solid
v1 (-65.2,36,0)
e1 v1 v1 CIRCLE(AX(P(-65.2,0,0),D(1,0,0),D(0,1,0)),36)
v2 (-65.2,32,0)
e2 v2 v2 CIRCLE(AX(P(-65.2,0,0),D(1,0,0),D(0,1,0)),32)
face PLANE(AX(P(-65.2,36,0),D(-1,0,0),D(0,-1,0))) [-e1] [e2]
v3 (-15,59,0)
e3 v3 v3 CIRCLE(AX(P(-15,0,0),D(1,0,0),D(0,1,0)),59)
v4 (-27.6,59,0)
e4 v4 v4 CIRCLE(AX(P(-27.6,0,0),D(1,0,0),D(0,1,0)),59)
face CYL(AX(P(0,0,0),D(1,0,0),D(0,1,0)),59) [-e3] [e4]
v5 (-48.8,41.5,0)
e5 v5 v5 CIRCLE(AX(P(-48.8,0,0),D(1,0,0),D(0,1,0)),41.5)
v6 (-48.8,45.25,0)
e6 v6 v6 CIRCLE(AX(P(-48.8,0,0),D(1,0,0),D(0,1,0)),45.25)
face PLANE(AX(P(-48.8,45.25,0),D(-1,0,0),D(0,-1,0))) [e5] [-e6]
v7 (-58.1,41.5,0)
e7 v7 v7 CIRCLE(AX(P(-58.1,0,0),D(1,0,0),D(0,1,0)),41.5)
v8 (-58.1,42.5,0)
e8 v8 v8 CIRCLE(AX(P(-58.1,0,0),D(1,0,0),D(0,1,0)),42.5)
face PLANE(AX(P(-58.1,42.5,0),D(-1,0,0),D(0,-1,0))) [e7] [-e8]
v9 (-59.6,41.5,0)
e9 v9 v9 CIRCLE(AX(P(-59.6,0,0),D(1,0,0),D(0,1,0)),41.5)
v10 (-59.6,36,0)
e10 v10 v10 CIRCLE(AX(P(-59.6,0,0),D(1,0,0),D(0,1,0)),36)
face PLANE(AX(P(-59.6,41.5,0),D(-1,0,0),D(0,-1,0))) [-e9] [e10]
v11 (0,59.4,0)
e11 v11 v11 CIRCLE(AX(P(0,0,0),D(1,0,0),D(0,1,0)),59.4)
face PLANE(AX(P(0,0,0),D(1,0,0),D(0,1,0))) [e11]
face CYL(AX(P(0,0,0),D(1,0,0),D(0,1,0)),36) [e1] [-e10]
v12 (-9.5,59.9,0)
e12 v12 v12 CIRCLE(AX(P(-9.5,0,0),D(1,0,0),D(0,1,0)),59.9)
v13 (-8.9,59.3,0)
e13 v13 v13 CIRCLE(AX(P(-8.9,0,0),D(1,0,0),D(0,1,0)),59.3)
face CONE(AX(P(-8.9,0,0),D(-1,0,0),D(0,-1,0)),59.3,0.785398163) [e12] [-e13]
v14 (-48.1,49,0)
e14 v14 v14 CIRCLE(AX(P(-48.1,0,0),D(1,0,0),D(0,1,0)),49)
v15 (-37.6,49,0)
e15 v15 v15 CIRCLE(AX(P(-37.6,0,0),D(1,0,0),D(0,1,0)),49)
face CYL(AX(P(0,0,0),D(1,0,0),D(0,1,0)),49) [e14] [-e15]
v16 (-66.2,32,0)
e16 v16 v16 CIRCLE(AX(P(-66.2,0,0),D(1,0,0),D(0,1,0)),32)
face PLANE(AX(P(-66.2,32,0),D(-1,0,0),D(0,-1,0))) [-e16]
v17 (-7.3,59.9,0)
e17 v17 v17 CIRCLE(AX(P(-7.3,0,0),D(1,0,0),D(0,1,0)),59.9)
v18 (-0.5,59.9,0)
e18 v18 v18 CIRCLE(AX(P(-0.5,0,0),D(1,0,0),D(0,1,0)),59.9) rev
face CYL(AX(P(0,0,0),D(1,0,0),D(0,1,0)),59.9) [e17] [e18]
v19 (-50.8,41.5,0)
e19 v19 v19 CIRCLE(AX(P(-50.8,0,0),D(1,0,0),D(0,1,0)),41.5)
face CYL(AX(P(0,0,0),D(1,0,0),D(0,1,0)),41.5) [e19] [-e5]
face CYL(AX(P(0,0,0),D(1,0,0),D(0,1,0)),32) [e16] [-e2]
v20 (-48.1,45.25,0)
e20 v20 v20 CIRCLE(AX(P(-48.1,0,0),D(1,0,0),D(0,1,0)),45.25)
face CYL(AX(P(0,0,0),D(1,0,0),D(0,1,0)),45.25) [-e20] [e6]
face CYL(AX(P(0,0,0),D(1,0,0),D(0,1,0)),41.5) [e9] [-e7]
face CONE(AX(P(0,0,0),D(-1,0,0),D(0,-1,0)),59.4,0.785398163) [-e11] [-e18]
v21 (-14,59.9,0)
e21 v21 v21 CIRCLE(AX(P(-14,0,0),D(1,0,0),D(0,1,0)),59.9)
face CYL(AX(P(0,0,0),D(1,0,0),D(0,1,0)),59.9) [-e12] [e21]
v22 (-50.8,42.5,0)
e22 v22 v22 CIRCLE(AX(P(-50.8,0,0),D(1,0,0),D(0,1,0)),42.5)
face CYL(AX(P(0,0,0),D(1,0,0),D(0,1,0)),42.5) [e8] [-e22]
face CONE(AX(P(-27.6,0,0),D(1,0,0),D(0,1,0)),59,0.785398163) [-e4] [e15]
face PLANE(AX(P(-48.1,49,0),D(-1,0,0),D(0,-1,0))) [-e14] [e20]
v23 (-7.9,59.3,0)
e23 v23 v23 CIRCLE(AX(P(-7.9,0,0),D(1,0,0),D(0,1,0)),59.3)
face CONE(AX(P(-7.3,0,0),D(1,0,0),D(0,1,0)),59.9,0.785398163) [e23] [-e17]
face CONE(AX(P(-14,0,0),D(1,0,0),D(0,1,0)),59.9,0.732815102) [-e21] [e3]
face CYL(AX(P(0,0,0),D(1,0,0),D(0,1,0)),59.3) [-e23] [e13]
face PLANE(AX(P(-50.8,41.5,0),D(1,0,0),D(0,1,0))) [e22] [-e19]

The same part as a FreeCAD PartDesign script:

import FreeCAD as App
import Part
import Sketcher
from FreeCAD import Vector
Q = App.Units.Quantity


def edges_at(feature, points):
    """Names of the edges that pass closest to the given points."""
    edges = feature.Shape.Edges
    near = lambda p: min(range(len(edges)), key=lambda i: edges[i].distToShape(Part.Vertex(*p))[0])
    return sorted({f"Edge{near(p) + 1}" for p in points})


def add_polygon(sketch, points):
    """Adds a closed chain of lines whose ends are joined by coincident constraints."""
    first, n = sketch.GeometryCount, len(points)
    for a, b in zip(points, points[1:] + points[:1]):
        sketch.addGeometry(Part.LineSegment(App.Vector(*a, 0), App.Vector(*b, 0)), False)
    for i in range(n):
        sketch.addConstraint(Sketcher.Constraint("Coincident", first + i, 2, first + (i + 1) % n, 1))

doc = App.newDocument("Part")
params = doc.addObject("Spreadsheet::Sheet", "Params")
for row, (alias, value) in enumerate([
    ("sketch1_width", "1 mm"),
    ("sketch1_width2", "2 mm"),
    ("sketch1_height", "4 mm"),
    ("sketch1_height2", "32 mm"),
    ("sketch1_width3", "7.3 mm"),
    ("revolution_angle", "360 deg"),
    ("chamfer_size", "0.5 mm"),
], start=1):
    params.set(f"A{row}", alias)
    params.set(f"B{row}", "=" + value)
    params.setAlias(f"B{row}", alias)

body = doc.addObject("PartDesign::Body", "Body")

sketch1 = doc.addObject("Sketcher::SketchObject", "Sketch")
body.addObject(sketch1)
sketch1.AttachmentSupport = (doc.XY_Plane, [""])
sketch1.MapMode = "FlatFace"
add_polygon(sketch1, [(0, 0), (0, 59.9), (-7.3, 59.9), (-7.9, 59.3), (-8.9, 59.3), (-9.5, 59.9), (-14, 59.9), (-15, 59), (-27.6, 59), (-37.6, 49), (-48.1, 49), (-48.1, 45.2), (-48.8, 45.2), (-48.8, 41.5), (-50.8, 41.5), (-50.8, 42.5), (-58.1, 42.5), (-58.1, 41.5), (-59.6, 41.5), (-59.6, 36), (-65.2, 36), (-65.2, 32), (-66.2, 32), (-66.2, 0)])
sketch1.addConstraint([
    Sketcher.Constraint("Vertical", 0),
    Sketcher.Constraint("Horizontal", 1),
    Sketcher.Constraint("Horizontal", 3),
    Sketcher.Constraint("Horizontal", 5),
    Sketcher.Constraint("Horizontal", 7),
    Sketcher.Constraint("Horizontal", 9),
    Sketcher.Constraint("Vertical", 10),
    Sketcher.Constraint("Horizontal", 11),
    Sketcher.Constraint("Vertical", 12),
    Sketcher.Constraint("Horizontal", 13),
    Sketcher.Constraint("Vertical", 14),
    Sketcher.Constraint("Horizontal", 15),
    Sketcher.Constraint("Vertical", 16),
    Sketcher.Constraint("Horizontal", 17),
    Sketcher.Constraint("Vertical", 18),
    Sketcher.Constraint("Horizontal", 19),
    Sketcher.Constraint("Vertical", 20),
    Sketcher.Constraint("Horizontal", 21),
    Sketcher.Constraint("Vertical", 22),
    Sketcher.Constraint("Horizontal", 23),
    Sketcher.Constraint("Coincident", 23, 2, -1, 1),
    Sketcher.Constraint("Perpendicular", 2, 4),
    Sketcher.Constraint("Perpendicular", 4, 8),
    Sketcher.Constraint("Horizontal", 1, 2, 4, 2),
    Sketcher.Constraint("Horizontal", 13, 2, 16, 2),
    Sketcher.Constraint("Equal", 1, 15),
    Sketcher.Constraint("Equal", 3, 21),
    Sketcher.Constraint("Equal", 10, 12),
    Sketcher.Constraint("Equal", 21, 14),
    Sketcher.Constraint("Equal", 2, 4),
    Sketcher.Constraint("DistanceX", 3, 2, 3, 1, Q("1 mm")),
    Sketcher.Constraint("DistanceX", 13, 2, 13, 1, Q("2 mm")),
    Sketcher.Constraint("DistanceY", 20, 2, 20, 1, Q("4 mm")),
    Sketcher.Constraint("DistanceY", 22, 2, 22, 1, Q("32 mm")),
    Sketcher.Constraint("DistanceX", 1, 2, 1, 1, Q("7.3 mm")),
    Sketcher.Constraint("DistanceX", 5, 2, 5, 1, Q("4.5 mm")),
    Sketcher.Constraint("DistanceX", 7, 2, 7, 1, Q("12.6 mm")),
    Sketcher.Constraint("DistanceX", 9, 2, 9, 1, Q("10.5 mm")),
    Sketcher.Constraint("DistanceX", 11, 2, 11, 1, Q("0.7 mm")),
    Sketcher.Constraint("DistanceX", 17, 2, 17, 1, Q("1.5 mm")),
    Sketcher.Constraint("DistanceX", 19, 2, 19, 1, Q("5.6 mm")),
    Sketcher.Constraint("DistanceX", 23, 1, 23, 2, Q("66.2 mm")),
    Sketcher.Constraint("DistanceY", 0, 1, 0, 2, Q("59.9 mm")),
    Sketcher.Constraint("DistanceY", 18, 2, 18, 1, Q("5.5 mm")),
    Sketcher.Constraint("DistanceX", 5, 2, -1, 1, Q("14 mm")),
    Sketcher.Constraint("DistanceX", 6, 2, -1, 1, Q("15 mm")),
    Sketcher.Constraint("DistanceY", -1, 1, 6, 2, Q("59 mm")),
])
sketch1.setExpression("Constraints[54]", "Params.sketch1_width")
sketch1.setExpression("Constraints[55]", "Params.sketch1_width2")
sketch1.setExpression("Constraints[56]", "Params.sketch1_height")
sketch1.setExpression("Constraints[57]", "Params.sketch1_height2")
sketch1.setExpression("Constraints[58]", "Params.sketch1_width3")
revolution = doc.addObject("PartDesign::Revolution", "Revolution")
body.addObject(revolution)
revolution.Profile = sketch1
revolution.ReferenceAxis = (sketch1, ["H_Axis"])
revolution.setExpression("Angle", "Params.revolution_angle")
doc.recompute()

chamfer = doc.addObject("PartDesign::Chamfer", "Chamfer")
body.addObject(chamfer)
chamfer.Base = (revolution, edges_at(revolution, [(0, -59.9, 0)]))
chamfer.setExpression("Size", "Params.chamfer_size")

doc.recompute()
